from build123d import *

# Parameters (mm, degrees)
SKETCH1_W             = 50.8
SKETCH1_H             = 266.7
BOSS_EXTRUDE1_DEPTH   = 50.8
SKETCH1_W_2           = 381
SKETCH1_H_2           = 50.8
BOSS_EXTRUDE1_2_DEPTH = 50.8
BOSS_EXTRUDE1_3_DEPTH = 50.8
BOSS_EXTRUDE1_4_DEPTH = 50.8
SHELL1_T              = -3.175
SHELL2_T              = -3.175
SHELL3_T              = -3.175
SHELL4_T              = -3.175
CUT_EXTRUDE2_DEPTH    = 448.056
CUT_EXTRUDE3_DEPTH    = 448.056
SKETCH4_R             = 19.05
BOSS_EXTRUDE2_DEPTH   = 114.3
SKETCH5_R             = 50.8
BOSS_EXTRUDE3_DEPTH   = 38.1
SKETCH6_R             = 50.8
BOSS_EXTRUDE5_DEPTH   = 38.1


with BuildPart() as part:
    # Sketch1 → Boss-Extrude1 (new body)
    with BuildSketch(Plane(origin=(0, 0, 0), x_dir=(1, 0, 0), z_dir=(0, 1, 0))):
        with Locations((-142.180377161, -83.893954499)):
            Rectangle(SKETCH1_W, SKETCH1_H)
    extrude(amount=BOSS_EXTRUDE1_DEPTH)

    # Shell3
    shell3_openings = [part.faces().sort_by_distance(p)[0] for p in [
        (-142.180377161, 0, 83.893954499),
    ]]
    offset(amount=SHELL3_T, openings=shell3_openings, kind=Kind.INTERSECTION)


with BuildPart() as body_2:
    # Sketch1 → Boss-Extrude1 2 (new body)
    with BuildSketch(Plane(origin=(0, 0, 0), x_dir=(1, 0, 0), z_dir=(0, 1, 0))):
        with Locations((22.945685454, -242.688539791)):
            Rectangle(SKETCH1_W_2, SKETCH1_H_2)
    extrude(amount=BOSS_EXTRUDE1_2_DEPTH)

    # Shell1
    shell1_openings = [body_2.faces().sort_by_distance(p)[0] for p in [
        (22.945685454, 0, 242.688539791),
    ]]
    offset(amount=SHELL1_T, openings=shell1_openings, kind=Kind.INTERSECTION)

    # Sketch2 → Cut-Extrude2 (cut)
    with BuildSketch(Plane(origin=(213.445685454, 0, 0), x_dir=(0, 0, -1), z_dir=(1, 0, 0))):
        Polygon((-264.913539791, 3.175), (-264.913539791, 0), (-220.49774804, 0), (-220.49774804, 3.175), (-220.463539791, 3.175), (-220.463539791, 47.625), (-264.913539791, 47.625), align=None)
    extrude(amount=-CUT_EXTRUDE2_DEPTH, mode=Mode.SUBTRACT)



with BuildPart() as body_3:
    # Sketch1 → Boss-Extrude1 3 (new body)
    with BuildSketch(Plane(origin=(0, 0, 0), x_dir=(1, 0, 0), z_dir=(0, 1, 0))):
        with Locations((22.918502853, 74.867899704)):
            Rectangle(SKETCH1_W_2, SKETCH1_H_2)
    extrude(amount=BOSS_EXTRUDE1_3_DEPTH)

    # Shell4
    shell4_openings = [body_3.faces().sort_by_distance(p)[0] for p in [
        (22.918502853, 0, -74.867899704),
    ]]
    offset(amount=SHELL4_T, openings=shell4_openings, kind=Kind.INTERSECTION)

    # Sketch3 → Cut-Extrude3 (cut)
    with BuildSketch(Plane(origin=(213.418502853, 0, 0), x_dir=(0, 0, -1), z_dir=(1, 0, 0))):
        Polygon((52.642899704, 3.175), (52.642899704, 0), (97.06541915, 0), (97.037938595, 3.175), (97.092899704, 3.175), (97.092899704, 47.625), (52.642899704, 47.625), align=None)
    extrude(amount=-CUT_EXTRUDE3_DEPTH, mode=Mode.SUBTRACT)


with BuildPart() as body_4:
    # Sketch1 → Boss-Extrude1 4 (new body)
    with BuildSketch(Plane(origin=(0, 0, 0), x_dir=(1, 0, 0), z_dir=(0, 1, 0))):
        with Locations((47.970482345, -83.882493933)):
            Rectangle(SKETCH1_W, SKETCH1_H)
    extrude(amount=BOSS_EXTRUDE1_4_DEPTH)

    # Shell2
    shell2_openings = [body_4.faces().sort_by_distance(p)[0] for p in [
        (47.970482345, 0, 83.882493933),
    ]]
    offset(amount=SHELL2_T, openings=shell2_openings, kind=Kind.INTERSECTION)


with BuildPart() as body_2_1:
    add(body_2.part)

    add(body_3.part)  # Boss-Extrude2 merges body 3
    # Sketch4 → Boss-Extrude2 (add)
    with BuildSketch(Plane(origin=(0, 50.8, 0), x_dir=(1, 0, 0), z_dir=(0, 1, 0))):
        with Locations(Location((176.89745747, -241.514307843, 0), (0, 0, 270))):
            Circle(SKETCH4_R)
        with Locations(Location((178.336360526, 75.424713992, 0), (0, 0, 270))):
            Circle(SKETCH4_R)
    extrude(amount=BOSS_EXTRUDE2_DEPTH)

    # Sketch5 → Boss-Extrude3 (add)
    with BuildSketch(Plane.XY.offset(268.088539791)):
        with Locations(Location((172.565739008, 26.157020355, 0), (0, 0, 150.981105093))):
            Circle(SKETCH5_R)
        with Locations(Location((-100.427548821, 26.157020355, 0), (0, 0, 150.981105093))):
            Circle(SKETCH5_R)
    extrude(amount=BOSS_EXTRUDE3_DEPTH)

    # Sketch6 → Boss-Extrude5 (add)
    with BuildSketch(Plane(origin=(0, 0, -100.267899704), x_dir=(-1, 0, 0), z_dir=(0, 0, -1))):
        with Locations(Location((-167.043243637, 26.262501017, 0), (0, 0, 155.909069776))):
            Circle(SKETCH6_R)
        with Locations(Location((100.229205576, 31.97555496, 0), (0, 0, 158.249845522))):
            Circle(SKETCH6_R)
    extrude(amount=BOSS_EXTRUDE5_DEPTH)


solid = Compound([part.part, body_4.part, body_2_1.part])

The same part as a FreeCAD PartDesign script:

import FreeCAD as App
import Part
import Sketcher
from FreeCAD import Vector
Q = App.Units.Quantity


def faces_at(feature, points):
    """Names of the faces that lie closest to the given points."""
    faces = feature.Shape.Faces
    near = lambda p: min(range(len(faces)), key=lambda i: faces[i].distToShape(Part.Vertex(*p))[0])
    return sorted({f"Face{near(p) + 1}" for p in points})


def add_polygon(sketch, points):
    """Adds a closed chain of lines whose ends are joined by coincident constraints."""
    first, n = sketch.GeometryCount, len(points)
    for a, b in zip(points, points[1:] + points[:1]):
        sketch.addGeometry(Part.LineSegment(App.Vector(*a, 0), App.Vector(*b, 0)), False)
    for i in range(n):
        sketch.addConstraint(Sketcher.Constraint("Coincident", first + i, 2, first + (i + 1) % n, 1))

doc = App.newDocument("Part")
body = doc.addObject("PartDesign::Body", "Body")

sketch1 = doc.addObject("Sketcher::SketchObject", "Sketch")
body.addObject(sketch1)
sketch1.AttachmentSupport = (doc.XZ_Plane, [""])
sketch1.MapMode = "FlatFace"
add_polygon(sketch1, [(-168, -49), (-168, 217), (-117, 217), (-117, -49)])
sketch1.addConstraint(Sketcher.Constraint("Vertical", 0))
sketch1.addConstraint(Sketcher.Constraint("Horizontal", 1))
sketch1.addConstraint(Sketcher.Constraint("Vertical", 2))
sketch1.addConstraint(Sketcher.Constraint("Horizontal", 3))
sketch1.addConstraint(Sketcher.Constraint("DistanceX", 1, 1, 1, 2, Q("2 in")))
sketch1.addConstraint(Sketcher.Constraint("DistanceY", 0, 1, 0, 2, Q("10.5 in")))
sketch1.addConstraint(Sketcher.Constraint("DistanceX", 0, 2, -1, 1, 167.580377))
sketch1.addConstraint(Sketcher.Constraint("DistanceY", -1, 1, 0, 2, 217.243954))
pad1 = doc.addObject("PartDesign::Pad", "Pad")
body.addObject(pad1)
pad1.Profile = sketch1
pad1.Length = Q("2 in")
pad1.Reversed = True
doc.recompute()

thickness = doc.addObject("PartDesign::Thickness", "Thickness")
body.addObject(thickness)
thickness.Base = (pad1, faces_at(pad1, [(-142.18, 0, 83.894)]))
thickness.Value = Q("0.125 in")
thickness.Reversed = True
thickness.Join = "Intersection"
body2 = doc.addObject("PartDesign::Body", "Body001")

sketch2 = doc.addObject("Sketcher::SketchObject", "Sketch001")
body2.addObject(sketch2)
sketch2.AttachmentSupport = (doc.getObject("XZ_Plane001"), [""])
sketch2.MapMode = "FlatFace"
add_polygon(sketch2, [(-168, 217), (-168, 268), (213, 268), (213, 217)])
sketch2.addConstraint(Sketcher.Constraint("Vertical", 0))
sketch2.addConstraint(Sketcher.Constraint("Horizontal", 1))
sketch2.addConstraint(Sketcher.Constraint("Vertical", 2))
sketch2.addConstraint(Sketcher.Constraint("Horizontal", 3))
sketch2.addConstraint(Sketcher.Constraint("DistanceX", 1, 1, 1, 2, Q("15 in")))
sketch2.addConstraint(Sketcher.Constraint("DistanceY", 0, 1, 0, 2, Q("2 in")))
sketch2.addConstraint(Sketcher.Constraint("DistanceY", -1, 1, 0, 2, 268.08854))
sketch2.addConstraint(Sketcher.Constraint("DistanceX", 0, 2, -1, 1, 167.554315))
pad2 = doc.addObject("PartDesign::Pad", "Pad001")
body2.addObject(pad2)
pad2.Profile = sketch2
pad2.Length = Q("2 in")
pad2.Reversed = True
doc.recompute()

thickness2 = doc.addObject("PartDesign::Thickness", "Thickness001")
body2.addObject(thickness2)
thickness2.Base = (pad2, faces_at(pad2, [(22.946, 0, 242.689)]))
thickness2.Value = Q("0.125 in")
thickness2.Reversed = True
thickness2.Join = "Intersection"

sketch3 = doc.addObject("Sketcher::SketchObject", "Sketch002")
body2.addObject(sketch3)
sketch3.AttachmentSupport = (doc.getObject("YZ_Plane001"), [""])
sketch3.MapMode = "FlatFace"
sketch3.AttachmentOffset = App.Placement(Vector(0, 0, 213.445685), App.Rotation())
add_polygon(sketch3, [(0, 264.91354), (0, 220.497748), (3.175, 220.497748), (3.175, 220.46354), (47.625, 220.46354), (47.625, 264.91354)])
sketch3.addConstraint(Sketcher.Constraint("Vertical", 0))
sketch3.addConstraint(Sketcher.Constraint("Horizontal", 1))
sketch3.addConstraint(Sketcher.Constraint("Vertical", 2))
sketch3.addConstraint(Sketcher.Constraint("Horizontal", 3))
sketch3.addConstraint(Sketcher.Constraint("Vertical", 4))
sketch3.addConstraint(Sketcher.Constraint("Horizontal", 5))
sketch3.addConstraint(Sketcher.Constraint("PointOnObject", 0, 2, -2))
sketch3.addConstraint(Sketcher.Constraint("Equal", 3, 4))
sketch3.addConstraint(Sketcher.Constraint("DistanceX", 3, 1, 3, 2, Q("1.75 in")))
sketch3.addConstraint(Sketcher.Constraint("DistanceX", 1, 1, 1, 2, Q("0.125 in")))
sketch3.addConstraint(Sketcher.Constraint("DistanceY", 0, 2, 0, 1, 44.415792))
sketch3.addConstraint(Sketcher.Constraint("DistanceY", -1, 1, 0, 2, 220.497748))
pocket1 = doc.addObject("PartDesign::Pocket", "Pocket")
body2.addObject(pocket1)
pocket1.Profile = sketch3
pocket1.Length = Q("17.64 in")
body3 = doc.addObject("PartDesign::Body", "Body002")

sketch4 = doc.addObject("Sketcher::SketchObject", "Sketch003")
body3.addObject(sketch4)
sketch4.AttachmentSupport = (doc.getObject("XZ_Plane002"), [""])
sketch4.MapMode = "FlatFace"
add_polygon(sketch4, [(-168, -100), (-168, -49), (213, -49), (213, -100)])
sketch4.addConstraint(Sketcher.Constraint("Vertical", 0))
sketch4.addConstraint(Sketcher.Constraint("Horizontal", 1))
sketch4.addConstraint(Sketcher.Constraint("Vertical", 2))
sketch4.addConstraint(Sketcher.Constraint("Horizontal", 3))
sketch4.addConstraint(Sketcher.Constraint("DistanceX", 1, 1, 1, 2, Q("15 in")))
sketch4.addConstraint(Sketcher.Constraint("DistanceY", 0, 1, 0, 2, Q("2 in")))
sketch4.addConstraint(Sketcher.Constraint("DistanceY", 0, 2, -1, 1, 49.4679))
sketch4.addConstraint(Sketcher.Constraint("DistanceX", 0, 2, -1, 1, 167.581497))
pad3 = doc.addObject("PartDesign::Pad", "Pad002")
body3.addObject(pad3)
pad3.Profile = sketch4
pad3.Length = Q("2 in")
pad3.Reversed = True
doc.recompute()

thickness3 = doc.addObject("PartDesign::Thickness", "Thickness002")
body3.addObject(thickness3)
thickness3.Base = (pad3, faces_at(pad3, [(22.919, 0, -74.868)]))
thickness3.Value = Q("0.125 in")
thickness3.Reversed = True
thickness3.Join = "Intersection"

sketch5 = doc.addObject("Sketcher::SketchObject", "Sketch004")
body3.addObject(sketch5)
sketch5.AttachmentSupport = (doc.getObject("YZ_Plane002"), [""])
sketch5.MapMode = "FlatFace"
sketch5.AttachmentOffset = App.Placement(Vector(0, 0, 213.418503), App.Rotation())
add_polygon(sketch5, [(0, -52.64), (0, -97.07), (3.17, -97.04), (3.17, -97.09), (47.62, -97.09), (47.62, -52.64)])
sketch5.addConstraint(Sketcher.Constraint("Vertical", 0))
sketch5.addConstraint(Sketcher.Constraint("Vertical", 2))
sketch5.addConstraint(Sketcher.Constraint("Horizontal", 3))
sketch5.addConstraint(Sketcher.Constraint("Vertical", 4))
sketch5.addConstraint(Sketcher.Constraint("Horizontal", 5))
sketch5.addConstraint(Sketcher.Constraint("PointOnObject", 0, 2, -2))
sketch5.addConstraint(Sketcher.Constraint("Equal", 3, 4))
sketch5.addConstraint(Sketcher.Constraint("DistanceX", 3, 1, 3, 2, Q("1.75 in")))
sketch5.addConstraint(Sketcher.Constraint("DistanceX", 5, 2, 5, 1, Q("1.875 in")))
sketch5.addConstraint(Sketcher.Constraint("DistanceY", 0, 2, 0, 1, 44.422519))
sketch5.addConstraint(Sketcher.Constraint("DistanceY", 2, 2, 2, 1, 0.054961))
sketch5.addConstraint(Sketcher.Constraint("DistanceY", 2, 2, -1, 1, 97.0929))
pocket2 = doc.addObject("PartDesign::Pocket", "Pocket001")
body3.addObject(pocket2)
pocket2.Profile = sketch5
pocket2.Length = Q("17.64 in")
body4 = doc.addObject("PartDesign::Body", "Body003")

sketch6 = doc.addObject("Sketcher::SketchObject", "Sketch005")
body4.addObject(sketch6)
sketch6.AttachmentSupport = (doc.getObject("XZ_Plane003"), [""])
sketch6.MapMode = "FlatFace"
add_polygon(sketch6, [(23, -49), (23, 217), (73, 217), (73, -49)])
sketch6.addConstraint(Sketcher.Constraint("Vertical", 0))
sketch6.addConstraint(Sketcher.Constraint("Horizontal", 1))
sketch6.addConstraint(Sketcher.Constraint("Vertical", 2))
sketch6.addConstraint(Sketcher.Constraint("Horizontal", 3))
sketch6.addConstraint(Sketcher.Constraint("DistanceX", 1, 1, 1, 2, Q("2 in")))
sketch6.addConstraint(Sketcher.Constraint("DistanceY", 0, 1, 0, 2, Q("10.5 in")))
sketch6.addConstraint(Sketcher.Constraint("DistanceX", -1, 1, 0, 2, 22.570482))
sketch6.addConstraint(Sketcher.Constraint("DistanceY", -1, 1, 0, 2, 217.232494))
pad4 = doc.addObject("PartDesign::Pad", "Pad003")
body4.addObject(pad4)
pad4.Profile = sketch6
pad4.Length = Q("2 in")
pad4.Reversed = True
doc.recompute()

thickness4 = doc.addObject("PartDesign::Thickness", "Thickness003")
body4.addObject(thickness4)
thickness4.Base = (pad4, faces_at(pad4, [(47.97, 0, 83.882)]))
thickness4.Value = Q("0.125 in")
thickness4.Reversed = True
thickness4.Join = "Intersection"
body2.AllowCompound = True
doc.recompute()

boolean = doc.addObject("PartDesign::Boolean", "Boolean")
body2.addObject(boolean)
boolean.Type = "Fuse"
boolean.addObjects([body3])

sketch7 = doc.addObject("Sketcher::SketchObject", "Sketch006")
body2.addObject(sketch7)
sketch7.AttachmentSupport = (doc.getObject("XZ_Plane001"), [""])
sketch7.MapMode = "FlatFace"
sketch7.AttachmentOffset = App.Placement(Vector(0, 0, -2 * 25.4), App.Rotation())
sketch7.addGeometry(Part.Circle(Vector(177, 242, 0), Vector(0, 0, 1), 19), False)
sketch7.addGeometry(Part.Circle(Vector(178, -75, 0), Vector(0, 0, 1), 19), False)
sketch7.addConstraint(Sketcher.Constraint("Equal", 0, 1))
sketch7.addConstraint(Sketcher.Constraint("Diameter", 0, Q("1.5 in")))
sketch7.addConstraint(Sketcher.Constraint("DistanceX", -1, 1, 1, 3, 178.336361))
sketch7.addConstraint(Sketcher.Constraint("DistanceY", 1, 3, 0, 3, 316.939022))
sketch7.addConstraint(Sketcher.Constraint("DistanceX", -1, 1, 0, 3, 176.897457))
sketch7.addConstraint(Sketcher.Constraint("DistanceY", -1, 1, 0, 3, 241.514308))
pad5 = doc.addObject("PartDesign::Pad", "Pad004")
body2.addObject(pad5)
pad5.Profile = sketch7
pad5.Length = Q("4.5 in")
pad5.Reversed = True

sketch8 = doc.addObject("Sketcher::SketchObject", "Sketch007")
body2.addObject(sketch8)
sketch8.AttachmentSupport = (doc.getObject("XY_Plane001"), [""])
sketch8.MapMode = "FlatFace"
sketch8.AttachmentOffset = App.Placement(Vector(0, 0, 268.08854), App.Rotation())
sketch8.addGeometry(Part.Circle(Vector(173, 26, 0), Vector(0, 0, 1), 51), False)
sketch8.addGeometry(Part.Circle(Vector(-100, 26, 0), Vector(0, 0, 1), 51), False)
sketch8.addConstraint(Sketcher.Constraint("Equal", 0, 1))
sketch8.addConstraint(Sketcher.Constraint("Horizontal", 0, 3, 1, 3))
sketch8.addConstraint(Sketcher.Constraint("Diameter", 0, Q("4 in")))
sketch8.addConstraint(Sketcher.Constraint("DistanceX", -1, 1, 0, 3, 172.565739))
sketch8.addConstraint(Sketcher.Constraint("DistanceY", -1, 1, 0, 3, 26.15702))
sketch8.addConstraint(Sketcher.Constraint("DistanceX", 1, 3, -1, 1, 100.427549))
pad6 = doc.addObject("PartDesign::Pad", "Pad005")
body2.addObject(pad6)
pad6.Profile = sketch8
pad6.Length = Q("1.5 in")

sketch9 = doc.addObject("Sketcher::SketchObject", "Sketch008")
body2.addObject(sketch9)
sketch9.AttachmentSupport = (doc.getObject("XY_Plane001"), [""])
sketch9.MapMode = "FlatFace"
sketch9.AttachmentOffset = App.Placement(Vector(0, 0, -100.2679), App.Rotation())
sketch9.addGeometry(Part.Circle(Vector(167, 26, 0), Vector(0, 0, 1), 51), False)
sketch9.addGeometry(Part.Circle(Vector(-100, 32, 0), Vector(0, 0, 1), 51), False)
sketch9.addConstraint(Sketcher.Constraint("Equal", 0, 1))
sketch9.addConstraint(Sketcher.Constraint("Diameter", 0, Q("4 in")))
sketch9.addConstraint(Sketcher.Constraint("DistanceY", -1, 1, 0, 3, 26.262501))
sketch9.addConstraint(Sketcher.Constraint("DistanceX", 1, 3, 0, 3, 267.272449))
sketch9.addConstraint(Sketcher.Constraint("DistanceX", -1, 1, 0, 3, 167.043244))
sketch9.addConstraint(Sketcher.Constraint("DistanceY", -1, 1, 1, 3, 31.975555))
pad7 = doc.addObject("PartDesign::Pad", "Pad006")
body2.addObject(pad7)
pad7.Profile = sketch9
pad7.Length = Q("1.5 in")
pad7.Reversed = True

doc.recompute()
